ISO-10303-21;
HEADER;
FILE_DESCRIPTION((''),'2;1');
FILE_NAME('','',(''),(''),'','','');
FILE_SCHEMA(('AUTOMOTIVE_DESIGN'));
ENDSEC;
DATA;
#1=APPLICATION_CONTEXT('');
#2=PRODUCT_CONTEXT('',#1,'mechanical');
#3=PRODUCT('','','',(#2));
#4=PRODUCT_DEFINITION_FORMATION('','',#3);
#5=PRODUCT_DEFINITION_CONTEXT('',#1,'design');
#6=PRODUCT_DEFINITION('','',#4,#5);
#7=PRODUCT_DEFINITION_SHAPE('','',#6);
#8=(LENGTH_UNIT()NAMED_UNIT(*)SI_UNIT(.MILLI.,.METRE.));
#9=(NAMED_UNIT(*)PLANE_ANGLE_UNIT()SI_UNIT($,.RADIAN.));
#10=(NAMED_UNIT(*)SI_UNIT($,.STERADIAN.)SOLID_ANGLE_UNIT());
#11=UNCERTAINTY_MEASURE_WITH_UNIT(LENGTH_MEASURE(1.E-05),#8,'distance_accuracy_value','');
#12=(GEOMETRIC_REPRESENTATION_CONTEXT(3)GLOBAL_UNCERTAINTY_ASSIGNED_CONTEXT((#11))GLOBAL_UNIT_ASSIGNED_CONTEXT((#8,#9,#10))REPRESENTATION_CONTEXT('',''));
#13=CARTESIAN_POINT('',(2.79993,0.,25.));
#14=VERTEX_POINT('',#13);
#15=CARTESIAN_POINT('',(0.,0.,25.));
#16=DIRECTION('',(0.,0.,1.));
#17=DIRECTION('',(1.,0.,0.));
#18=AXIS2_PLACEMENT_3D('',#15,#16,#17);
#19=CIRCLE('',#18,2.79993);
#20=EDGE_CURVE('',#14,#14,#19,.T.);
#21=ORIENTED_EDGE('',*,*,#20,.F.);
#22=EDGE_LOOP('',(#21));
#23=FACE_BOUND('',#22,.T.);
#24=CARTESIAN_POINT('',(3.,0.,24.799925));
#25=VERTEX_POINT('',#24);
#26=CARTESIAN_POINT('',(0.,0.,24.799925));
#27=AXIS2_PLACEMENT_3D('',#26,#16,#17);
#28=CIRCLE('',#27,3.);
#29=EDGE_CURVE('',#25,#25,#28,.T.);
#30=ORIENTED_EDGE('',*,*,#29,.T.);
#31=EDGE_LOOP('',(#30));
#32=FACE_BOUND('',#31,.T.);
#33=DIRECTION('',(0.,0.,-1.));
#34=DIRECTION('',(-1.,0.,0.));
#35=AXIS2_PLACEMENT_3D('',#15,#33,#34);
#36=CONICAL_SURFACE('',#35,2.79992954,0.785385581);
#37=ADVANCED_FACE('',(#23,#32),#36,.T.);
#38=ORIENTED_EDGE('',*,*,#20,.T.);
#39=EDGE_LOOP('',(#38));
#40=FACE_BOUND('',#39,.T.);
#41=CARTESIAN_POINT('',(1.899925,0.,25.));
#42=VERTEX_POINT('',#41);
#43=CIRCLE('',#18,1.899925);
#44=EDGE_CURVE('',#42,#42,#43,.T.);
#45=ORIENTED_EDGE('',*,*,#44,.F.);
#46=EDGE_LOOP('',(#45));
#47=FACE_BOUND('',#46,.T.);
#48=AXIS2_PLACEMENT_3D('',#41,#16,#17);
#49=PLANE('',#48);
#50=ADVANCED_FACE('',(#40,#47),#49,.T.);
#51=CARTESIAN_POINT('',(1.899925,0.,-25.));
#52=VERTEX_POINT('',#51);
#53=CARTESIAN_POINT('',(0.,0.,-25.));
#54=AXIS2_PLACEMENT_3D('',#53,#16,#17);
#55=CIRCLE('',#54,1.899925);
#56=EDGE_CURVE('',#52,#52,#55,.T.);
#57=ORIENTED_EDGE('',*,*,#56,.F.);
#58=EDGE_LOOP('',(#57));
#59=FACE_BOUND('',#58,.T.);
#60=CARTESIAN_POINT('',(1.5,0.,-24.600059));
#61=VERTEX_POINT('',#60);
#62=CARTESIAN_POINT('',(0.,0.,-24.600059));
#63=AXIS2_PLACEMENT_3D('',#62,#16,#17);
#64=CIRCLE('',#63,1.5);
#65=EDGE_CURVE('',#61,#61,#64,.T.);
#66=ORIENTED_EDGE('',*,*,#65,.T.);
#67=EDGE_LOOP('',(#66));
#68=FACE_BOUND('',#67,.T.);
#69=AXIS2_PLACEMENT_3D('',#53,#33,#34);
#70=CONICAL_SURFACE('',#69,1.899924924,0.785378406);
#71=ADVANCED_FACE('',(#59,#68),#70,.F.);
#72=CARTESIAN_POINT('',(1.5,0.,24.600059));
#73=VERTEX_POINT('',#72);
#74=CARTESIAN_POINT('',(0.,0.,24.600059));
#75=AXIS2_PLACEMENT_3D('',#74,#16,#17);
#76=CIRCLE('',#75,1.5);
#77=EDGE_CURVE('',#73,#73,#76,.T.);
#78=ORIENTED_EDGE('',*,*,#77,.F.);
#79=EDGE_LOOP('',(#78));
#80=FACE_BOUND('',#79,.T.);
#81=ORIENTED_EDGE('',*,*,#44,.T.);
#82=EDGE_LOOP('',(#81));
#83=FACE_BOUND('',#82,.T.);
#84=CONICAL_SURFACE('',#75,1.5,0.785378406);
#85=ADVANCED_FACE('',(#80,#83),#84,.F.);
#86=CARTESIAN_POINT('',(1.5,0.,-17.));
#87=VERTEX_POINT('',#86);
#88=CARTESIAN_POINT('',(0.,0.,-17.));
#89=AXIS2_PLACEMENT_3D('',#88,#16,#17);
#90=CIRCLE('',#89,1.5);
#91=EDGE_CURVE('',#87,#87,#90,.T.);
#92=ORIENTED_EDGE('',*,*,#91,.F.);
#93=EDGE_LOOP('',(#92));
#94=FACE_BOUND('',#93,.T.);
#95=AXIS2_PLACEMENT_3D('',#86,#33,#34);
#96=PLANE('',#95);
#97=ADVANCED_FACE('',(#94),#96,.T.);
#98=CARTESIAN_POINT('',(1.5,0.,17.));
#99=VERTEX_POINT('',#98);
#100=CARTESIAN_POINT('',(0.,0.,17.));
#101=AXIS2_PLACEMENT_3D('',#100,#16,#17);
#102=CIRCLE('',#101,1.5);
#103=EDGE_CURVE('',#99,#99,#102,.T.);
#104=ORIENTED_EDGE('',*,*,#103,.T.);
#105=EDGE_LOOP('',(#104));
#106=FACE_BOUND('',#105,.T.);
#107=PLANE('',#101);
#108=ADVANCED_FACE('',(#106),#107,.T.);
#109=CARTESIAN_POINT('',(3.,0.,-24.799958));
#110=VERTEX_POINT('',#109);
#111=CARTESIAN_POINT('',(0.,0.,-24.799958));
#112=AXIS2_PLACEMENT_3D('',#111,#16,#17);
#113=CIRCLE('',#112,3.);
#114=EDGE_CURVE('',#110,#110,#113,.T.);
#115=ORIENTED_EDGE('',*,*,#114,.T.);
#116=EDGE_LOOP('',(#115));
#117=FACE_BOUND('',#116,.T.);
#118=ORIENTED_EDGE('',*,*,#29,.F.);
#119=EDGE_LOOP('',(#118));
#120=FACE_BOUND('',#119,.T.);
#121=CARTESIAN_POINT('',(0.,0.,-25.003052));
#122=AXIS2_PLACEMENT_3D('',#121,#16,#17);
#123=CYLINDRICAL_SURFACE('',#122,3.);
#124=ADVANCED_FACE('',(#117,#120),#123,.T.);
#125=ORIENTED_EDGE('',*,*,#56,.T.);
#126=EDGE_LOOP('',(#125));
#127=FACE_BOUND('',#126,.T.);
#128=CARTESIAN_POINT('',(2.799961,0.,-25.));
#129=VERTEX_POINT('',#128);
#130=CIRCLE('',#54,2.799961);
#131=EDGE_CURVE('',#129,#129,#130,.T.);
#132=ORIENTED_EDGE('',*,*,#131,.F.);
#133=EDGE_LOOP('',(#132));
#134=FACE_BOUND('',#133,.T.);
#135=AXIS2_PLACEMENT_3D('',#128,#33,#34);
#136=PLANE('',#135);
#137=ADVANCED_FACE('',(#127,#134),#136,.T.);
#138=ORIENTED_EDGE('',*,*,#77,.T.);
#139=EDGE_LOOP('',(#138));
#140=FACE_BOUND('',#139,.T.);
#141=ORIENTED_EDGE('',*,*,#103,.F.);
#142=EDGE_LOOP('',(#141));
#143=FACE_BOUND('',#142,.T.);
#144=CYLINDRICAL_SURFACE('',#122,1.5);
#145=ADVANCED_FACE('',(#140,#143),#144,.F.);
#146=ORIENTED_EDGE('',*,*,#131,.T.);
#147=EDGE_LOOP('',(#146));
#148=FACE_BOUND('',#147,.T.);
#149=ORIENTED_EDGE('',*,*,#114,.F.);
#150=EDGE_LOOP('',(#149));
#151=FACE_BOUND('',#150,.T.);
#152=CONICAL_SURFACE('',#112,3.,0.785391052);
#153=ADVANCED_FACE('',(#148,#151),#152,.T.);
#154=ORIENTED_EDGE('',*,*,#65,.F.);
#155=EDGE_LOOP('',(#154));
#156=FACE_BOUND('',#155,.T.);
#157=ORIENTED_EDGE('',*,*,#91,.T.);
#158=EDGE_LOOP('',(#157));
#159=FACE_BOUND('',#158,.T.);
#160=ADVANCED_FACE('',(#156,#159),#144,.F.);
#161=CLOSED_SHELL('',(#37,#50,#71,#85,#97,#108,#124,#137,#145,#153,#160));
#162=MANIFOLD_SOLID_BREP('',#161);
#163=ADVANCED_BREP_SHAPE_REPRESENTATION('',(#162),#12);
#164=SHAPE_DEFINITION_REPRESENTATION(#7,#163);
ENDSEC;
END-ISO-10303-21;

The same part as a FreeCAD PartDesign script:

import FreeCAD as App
import Part
import Sketcher


def add_polygon(sketch, points):
    """Adds a closed chain of lines whose ends are joined by coincident constraints."""
    first, n = sketch.GeometryCount, len(points)
    for a, b in zip(points, points[1:] + points[:1]):
        sketch.addGeometry(Part.LineSegment(App.Vector(*a, 0), App.Vector(*b, 0)), False)
    for i in range(n):
        sketch.addConstraint(Sketcher.Constraint("Coincident", first + i, 2, first + (i + 1) % n, 1))

doc = App.newDocument("Part")
params = doc.addObject("Spreadsheet::Sheet", "Params")
for row, (alias, value) in enumerate([
    ("sketch1_height", "34 mm"),
    ("sketch1_width", "1.5 mm"),
    ("revolution_angle", "360 deg"),
], start=1):
    params.set(f"A{row}", alias)
    params.set(f"B{row}", "=" + value)
    params.setAlias(f"B{row}", alias)

body = doc.addObject("PartDesign::Body", "Body")

# Sketch on XZ plane
sketch1 = body.newObject("Sketcher::SketchObject", "Sketch")
sketch1.AttachmentSupport = (doc.getObject("XZ_Plane"), [""])
sketch1.MapMode = "FlatFace"
add_polygon(sketch1, [(1.5, -17), (0, -17), (0, 17), (1.5, 17), (1.5, 24.6), (1.9, 25), (2.8, 25), (3, 24.8), (3, -24.8), (2.8, -25), (1.9, -25), (1.5, -24.6)])  # lines 0-11
sketch1.addConstraint(Sketcher.Constraint("Horizontal", 0))
sketch1.addConstraint(Sketcher.Constraint("Vertical", 1))
sketch1.addConstraint(Sketcher.Constraint("Horizontal", 2))
sketch1.addConstraint(Sketcher.Constraint("Vertical", 3))
sketch1.addConstraint(Sketcher.Constraint("Horizontal", 5))
sketch1.addConstraint(Sketcher.Constraint("Vertical", 7))
sketch1.addConstraint(Sketcher.Constraint("Horizontal", 9))
sketch1.addConstraint(Sketcher.Constraint("Vertical", 11))
sketch1.addConstraint(Sketcher.Constraint("Symmetric", 0, 2, 1, 2, -1, 1))
sketch1.addConstraint(Sketcher.Constraint("Symmetric", 4, 2, 9, 2, -1))
sketch1.addConstraint(Sketcher.Constraint("Symmetric", 3, 2, 10, 2, -1))
sketch1.addConstraint(Sketcher.Constraint("DistanceY", 1, 1, 1, 2, 34.0))
sketch1.addConstraint(Sketcher.Constraint("DistanceX", 0, 2, 0, 1, 1.5))
sketch1.addConstraint(Sketcher.Constraint("DistanceY", -1, 1, 4, 2, 25.0))
sketch1.addConstraint(Sketcher.Constraint("DistanceX", -1, 1, 6, 2, 3.0))
sketch1.addConstraint(Sketcher.Constraint("Distance", 8, 0.2829))
sketch1.addConstraint(Sketcher.Constraint("DistanceY", 3, 1, 3, 2, 7.600059))
sketch1.addConstraint(Sketcher.Constraint("DistanceY", 7, 2, 10, 2, 0.199899))
sketch1.addConstraint(Sketcher.Constraint("Distance", 4, 0.56559))
sketch1.addConstraint(Sketcher.Constraint("DistanceX", 5, 1, 5, 2, 0.900005))
sketch1.addConstraint(Sketcher.Constraint("DistanceY", 7, 2, 7, 1, 49.599883))
sketch1.setExpression("Constraints[23]", "Params.sketch1_height")
sketch1.setExpression("Constraints[24]", "Params.sketch1_width")
revolution = body.newObject("PartDesign::Revolution", "Revolution")
revolution.Profile = sketch1
revolution.ReferenceAxis = (sketch1, ["V_Axis"])
revolution.setExpression("Angle", "Params.revolution_angle")

doc.recompute()
